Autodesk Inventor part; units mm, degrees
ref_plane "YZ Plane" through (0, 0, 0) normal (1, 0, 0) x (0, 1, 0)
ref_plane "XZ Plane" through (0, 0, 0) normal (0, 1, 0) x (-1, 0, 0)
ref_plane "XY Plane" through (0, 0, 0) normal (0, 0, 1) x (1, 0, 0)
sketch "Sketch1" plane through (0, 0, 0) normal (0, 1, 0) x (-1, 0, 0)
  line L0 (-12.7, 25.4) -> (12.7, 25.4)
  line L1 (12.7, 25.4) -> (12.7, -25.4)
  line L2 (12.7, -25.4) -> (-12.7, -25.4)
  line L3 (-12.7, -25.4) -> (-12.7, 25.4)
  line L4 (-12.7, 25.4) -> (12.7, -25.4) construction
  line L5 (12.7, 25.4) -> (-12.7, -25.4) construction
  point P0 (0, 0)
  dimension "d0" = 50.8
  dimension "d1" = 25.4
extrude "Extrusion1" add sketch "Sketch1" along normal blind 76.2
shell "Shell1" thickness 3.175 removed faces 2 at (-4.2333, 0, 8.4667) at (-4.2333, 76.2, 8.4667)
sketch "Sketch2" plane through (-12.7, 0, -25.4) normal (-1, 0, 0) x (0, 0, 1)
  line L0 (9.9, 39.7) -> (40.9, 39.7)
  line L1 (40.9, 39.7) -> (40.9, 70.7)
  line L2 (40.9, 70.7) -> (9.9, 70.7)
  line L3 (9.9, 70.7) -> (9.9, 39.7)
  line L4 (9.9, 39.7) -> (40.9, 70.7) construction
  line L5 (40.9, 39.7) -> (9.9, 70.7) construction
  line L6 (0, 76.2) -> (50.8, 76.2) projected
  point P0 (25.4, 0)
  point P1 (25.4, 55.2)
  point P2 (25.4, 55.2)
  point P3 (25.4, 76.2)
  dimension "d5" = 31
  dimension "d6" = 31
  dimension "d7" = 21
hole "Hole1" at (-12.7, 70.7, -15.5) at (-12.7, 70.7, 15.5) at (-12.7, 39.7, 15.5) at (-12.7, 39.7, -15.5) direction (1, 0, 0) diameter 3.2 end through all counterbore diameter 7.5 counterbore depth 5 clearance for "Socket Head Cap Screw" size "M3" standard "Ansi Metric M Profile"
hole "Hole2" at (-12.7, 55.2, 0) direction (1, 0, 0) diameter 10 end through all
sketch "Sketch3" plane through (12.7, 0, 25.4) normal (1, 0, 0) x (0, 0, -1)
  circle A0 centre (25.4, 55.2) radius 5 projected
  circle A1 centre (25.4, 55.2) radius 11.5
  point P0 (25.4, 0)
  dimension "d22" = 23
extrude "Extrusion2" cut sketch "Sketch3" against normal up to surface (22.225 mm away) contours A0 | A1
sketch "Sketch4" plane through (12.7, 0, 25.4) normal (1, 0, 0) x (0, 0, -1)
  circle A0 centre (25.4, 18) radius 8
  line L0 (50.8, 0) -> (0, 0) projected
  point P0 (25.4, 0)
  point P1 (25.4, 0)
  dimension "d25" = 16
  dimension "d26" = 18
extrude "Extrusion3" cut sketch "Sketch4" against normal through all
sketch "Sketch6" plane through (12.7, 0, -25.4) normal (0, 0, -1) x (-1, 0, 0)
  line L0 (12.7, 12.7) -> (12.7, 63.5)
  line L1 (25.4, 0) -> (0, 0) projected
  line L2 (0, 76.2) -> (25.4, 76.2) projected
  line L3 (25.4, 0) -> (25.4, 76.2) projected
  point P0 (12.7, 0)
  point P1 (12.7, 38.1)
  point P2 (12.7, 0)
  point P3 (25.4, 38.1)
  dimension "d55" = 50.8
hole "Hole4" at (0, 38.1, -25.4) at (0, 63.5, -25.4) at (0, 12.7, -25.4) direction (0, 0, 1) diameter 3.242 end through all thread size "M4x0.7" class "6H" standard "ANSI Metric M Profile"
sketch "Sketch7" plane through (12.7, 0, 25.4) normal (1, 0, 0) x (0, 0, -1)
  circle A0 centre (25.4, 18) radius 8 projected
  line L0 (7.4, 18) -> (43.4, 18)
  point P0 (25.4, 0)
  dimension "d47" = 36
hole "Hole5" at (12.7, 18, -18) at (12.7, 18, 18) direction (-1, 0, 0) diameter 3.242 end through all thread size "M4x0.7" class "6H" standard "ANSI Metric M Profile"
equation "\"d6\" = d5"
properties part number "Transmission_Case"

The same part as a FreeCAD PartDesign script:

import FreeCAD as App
import Part
import Sketcher
Q = App.Units.Quantity


def faces_at(feature, points):
    """Names of the faces that lie closest to the given points."""
    faces = feature.Shape.Faces
    near = lambda p: min(range(len(faces)), key=lambda i: faces[i].distToShape(Part.Vertex(*p))[0])
    return sorted({f"Face{near(p) + 1}" for p in points})

doc = App.newDocument("Part")
body = doc.addObject("PartDesign::Body", "Body")

# Sketch on XZ plane
sketch1 = body.newObject("Sketcher::SketchObject", "Sketch")
sketch1.AttachmentSupport = (doc.getObject("XZ_Plane"), [""])
sketch1.MapMode = "FlatFace"
sketch1.addGeometry([
    Part.LineSegment(App.Vector(-13, 25, 0), App.Vector(13, 25, 0)),
    Part.LineSegment(App.Vector(13, 25, 0), App.Vector(13, -25, 0)),
    Part.LineSegment(App.Vector(13, -25, 0), App.Vector(-13, -25, 0)),
    Part.LineSegment(App.Vector(-13, -25, 0), App.Vector(-13, 25, 0)),
], False)
sketch1.addConstraint([
    Sketcher.Constraint("Coincident", 0, 2, 1, 1),
    Sketcher.Constraint("Coincident", 1, 2, 2, 1),
    Sketcher.Constraint("Coincident", 2, 2, 3, 1),
    Sketcher.Constraint("Coincident", 3, 2, 0, 1),
    Sketcher.Constraint("Horizontal", 0),
    Sketcher.Constraint("Vertical", 1),
    Sketcher.Constraint("Horizontal", 2),
    Sketcher.Constraint("Vertical", 3),
    Sketcher.Constraint("Symmetric", 0, 2, 2, 2, -1, 1),
    Sketcher.Constraint("DistanceX", 0, 1, 0, 2, Q("1 in")),
    Sketcher.Constraint("DistanceY", 1, 2, 1, 1, Q("2 in")),
])
pad1 = body.newObject("PartDesign::Pad", "Pad")
pad1.Profile = sketch1
pad1.Length = Q("3 in")
pad1.Reversed = True
doc.recompute()

thickness = body.newObject("PartDesign::Thickness", "Thickness")
thickness.Base = (pad1, faces_at(pad1, [(-4.233, 0, 8.467), (-4.233, 76.2, 8.467)]))
thickness.Value = Q("0.125 in")
thickness.Reversed = True
thickness.Join = "Intersection"

# Sketch on YZ plane
sketch2 = body.newObject("Sketcher::SketchObject", "Sketch001")
sketch2.AttachmentSupport = (doc.getObject("YZ_Plane"), [""])
sketch2.MapMode = "FlatFace"
sketch2.AttachmentOffset = App.Placement(App.Vector(0, 0, -0.5 * 25.4), App.Rotation())
sketch2.addGeometry([
    Part.Circle(App.Vector(70.7, -15.5, 0), App.Vector(0, 0, 1), 1.6),
    Part.Circle(App.Vector(70.7, 15.5, 0), App.Vector(0, 0, 1), 1.6),
    Part.Circle(App.Vector(39.7, 15.5, 0), App.Vector(0, 0, 1), 1.6),
    Part.Circle(App.Vector(39.7, -15.5, 0), App.Vector(0, 0, 1), 1.6),
], False)
sketch2.addConstraint([
    Sketcher.Constraint("Equal", 0, 1),
    Sketcher.Constraint("Equal", 1, 2),
    Sketcher.Constraint("Equal", 2, 3),
    Sketcher.Constraint("Symmetric", 0, 3, 1, 3, -1),
    Sketcher.Constraint("Symmetric", 2, 3, 3, 3, -1),
    Sketcher.Constraint("Horizontal", 1, 3, 2, 3),
    Sketcher.Constraint("Diameter", 0, 3.2),
    Sketcher.Constraint("DistanceX", -1, 1, 2, 3, Q("1.563 in")),
    Sketcher.Constraint("DistanceX", -1, 1, 0, 3, 70.7),
    Sketcher.Constraint("DistanceY", 0, 3, -1, 1, 15.5),
])
doc.recompute()
hole = body.newObject("PartDesign::Hole", "Hole")
hole.Profile = sketch2
hole.ThreadType = "None"
hole.Diameter = 3.2
hole.DepthType = "ThroughAll"
hole.HoleCutType = "Counterbore"
hole.HoleCutDiameter = 7.5
hole.HoleCutDepth = 5
hole.Reversed = True

# Sketch on YZ plane
sketch3 = body.newObject("Sketcher::SketchObject", "Sketch002")
sketch3.AttachmentSupport = (doc.getObject("YZ_Plane"), [""])
sketch3.MapMode = "FlatFace"
sketch3.AttachmentOffset = App.Placement(App.Vector(0, 0, -0.5 * 25.4), App.Rotation())
sketch3.addGeometry(Part.Circle(App.Vector(55, 0, 0), App.Vector(0, 0, 1), 5), False)
sketch3.addConstraint([
    Sketcher.Constraint("PointOnObject", 0, 3, -1),
    Sketcher.Constraint("Diameter", 0, Q("0.3937 in")),
    Sketcher.Constraint("DistanceX", -1, 1, 0, 3, 55.2),
])
doc.recompute()
hole2 = body.newObject("PartDesign::Hole", "Hole001")
hole2.Profile = sketch3
hole2.ThreadType = "None"
hole2.Diameter = Q("0.3937008 in")
hole2.DepthType = "ThroughAll"
hole2.Reversed = True

# Sketch on YZ plane
sketch4 = body.newObject("Sketcher::SketchObject", "Sketch003")
sketch4.AttachmentSupport = (doc.getObject("YZ_Plane"), [""])
sketch4.MapMode = "FlatFace"
sketch4.AttachmentOffset = App.Placement(App.Vector(0, 0, 0.5 * 25.4), App.Rotation())
sketch4.addGeometry(Part.Circle(App.Vector(55, 0, 0), App.Vector(0, 0, 1), 12), False)
sketch4.addConstraint([
    Sketcher.Constraint("PointOnObject", 0, 3, -1),
    Sketcher.Constraint("Diameter", 0, Q("0.9055 in")),
    Sketcher.Constraint("DistanceX", -1, 1, 0, 3, 55.2),
])
pocket1 = body.newObject("PartDesign::Pocket", "Pocket")
pocket1.Profile = sketch4
pocket1.Length = Q("0.875 in")

# Sketch on YZ plane
sketch5 = body.newObject("Sketcher::SketchObject", "Sketch004")
sketch5.AttachmentSupport = (doc.getObject("YZ_Plane"), [""])
sketch5.MapMode = "FlatFace"
sketch5.AttachmentOffset = App.Placement(App.Vector(0, 0, 0.5 * 25.4), App.Rotation())
sketch5.addGeometry(Part.Circle(App.Vector(18, 0, 0), App.Vector(0, 0, 1), 8), False)
sketch5.addConstraint([
    Sketcher.Constraint("PointOnObject", 0, 3, -1),
    Sketcher.Constraint("Diameter", 0, 16.0),
    Sketcher.Constraint("DistanceX", -1, 1, 0, 3, 18.0),
])
pocket2 = body.newObject("PartDesign::Pocket", "Pocket001")
pocket2.Profile = sketch5
pocket2.Type = "ThroughAll"

# Sketch on XY plane
sketch6 = body.newObject("Sketcher::SketchObject", "Sketch005")
sketch6.AttachmentSupport = (doc.getObject("XY_Plane"), [""])
sketch6.MapMode = "FlatFace"
sketch6.AttachmentOffset = App.Placement(App.Vector(0, 0, -1 * 25.4), App.Rotation())
sketch6.addGeometry([
    Part.Circle(App.Vector(0, 38.1, 0), App.Vector(0, 0, 1), 1.6),
    Part.Circle(App.Vector(0, 63.5, 0), App.Vector(0, 0, 1), 1.6),
    Part.Circle(App.Vector(0, 12.7, 0), App.Vector(0, 0, 1), 1.6),
], False)
sketch6.addConstraint([
    Sketcher.Constraint("Equal", 0, 1),
    Sketcher.Constraint("Equal", 1, 2),
    Sketcher.Constraint("PointOnObject", 0, 3, -2),
    Sketcher.Constraint("PointOnObject", 1, 3, -2),
    Sketcher.Constraint("PointOnObject", 2, 3, -2),
    Sketcher.Constraint("DistanceY", 0, 3, 1, 3, Q("1 in")),
    Sketcher.Constraint("DistanceY", 2, 3, 0, 3, Q("1 in")),
    Sketcher.Constraint("DistanceY", -1, 1, 0, 3, Q("1.5 in")),
    Sketcher.Constraint("Diameter", 0, 3.242),
])
doc.recompute()
hole3 = body.newObject("PartDesign::Hole", "Hole002")
hole3.Profile = sketch6
hole3.ThreadType = "None"
hole3.Diameter = 3.242
hole3.DepthType = "ThroughAll"
hole3.Reversed = True

# Sketch on YZ plane
sketch7 = body.newObject("Sketcher::SketchObject", "Sketch006")
sketch7.AttachmentSupport = (doc.getObject("YZ_Plane"), [""])
sketch7.MapMode = "FlatFace"
sketch7.AttachmentOffset = App.Placement(App.Vector(0, 0, 0.5 * 25.4), App.Rotation())
sketch7.addGeometry([
    Part.Circle(App.Vector(18, -18, 0), App.Vector(0, 0, 1), 1.6),
    Part.Circle(App.Vector(18, 18, 0), App.Vector(0, 0, 1), 1.6),
], False)
sketch7.addConstraint([
    Sketcher.Constraint("Equal", 0, 1),
    Sketcher.Constraint("Symmetric", 0, 3, 1, 3, -1),
    Sketcher.Constraint("Diameter", 0, 3.242),
    Sketcher.Constraint("DistanceX", -1, 1, 0, 3, 18.0),
    Sketcher.Constraint("DistanceY", 0, 3, -1, 1, 18.0),
])
doc.recompute()
hole4 = body.newObject("PartDesign::Hole", "Hole003")
hole4.Profile = sketch7
hole4.ThreadType = "None"
hole4.Diameter = 3.242
hole4.DepthType = "ThroughAll"

doc.recompute()
